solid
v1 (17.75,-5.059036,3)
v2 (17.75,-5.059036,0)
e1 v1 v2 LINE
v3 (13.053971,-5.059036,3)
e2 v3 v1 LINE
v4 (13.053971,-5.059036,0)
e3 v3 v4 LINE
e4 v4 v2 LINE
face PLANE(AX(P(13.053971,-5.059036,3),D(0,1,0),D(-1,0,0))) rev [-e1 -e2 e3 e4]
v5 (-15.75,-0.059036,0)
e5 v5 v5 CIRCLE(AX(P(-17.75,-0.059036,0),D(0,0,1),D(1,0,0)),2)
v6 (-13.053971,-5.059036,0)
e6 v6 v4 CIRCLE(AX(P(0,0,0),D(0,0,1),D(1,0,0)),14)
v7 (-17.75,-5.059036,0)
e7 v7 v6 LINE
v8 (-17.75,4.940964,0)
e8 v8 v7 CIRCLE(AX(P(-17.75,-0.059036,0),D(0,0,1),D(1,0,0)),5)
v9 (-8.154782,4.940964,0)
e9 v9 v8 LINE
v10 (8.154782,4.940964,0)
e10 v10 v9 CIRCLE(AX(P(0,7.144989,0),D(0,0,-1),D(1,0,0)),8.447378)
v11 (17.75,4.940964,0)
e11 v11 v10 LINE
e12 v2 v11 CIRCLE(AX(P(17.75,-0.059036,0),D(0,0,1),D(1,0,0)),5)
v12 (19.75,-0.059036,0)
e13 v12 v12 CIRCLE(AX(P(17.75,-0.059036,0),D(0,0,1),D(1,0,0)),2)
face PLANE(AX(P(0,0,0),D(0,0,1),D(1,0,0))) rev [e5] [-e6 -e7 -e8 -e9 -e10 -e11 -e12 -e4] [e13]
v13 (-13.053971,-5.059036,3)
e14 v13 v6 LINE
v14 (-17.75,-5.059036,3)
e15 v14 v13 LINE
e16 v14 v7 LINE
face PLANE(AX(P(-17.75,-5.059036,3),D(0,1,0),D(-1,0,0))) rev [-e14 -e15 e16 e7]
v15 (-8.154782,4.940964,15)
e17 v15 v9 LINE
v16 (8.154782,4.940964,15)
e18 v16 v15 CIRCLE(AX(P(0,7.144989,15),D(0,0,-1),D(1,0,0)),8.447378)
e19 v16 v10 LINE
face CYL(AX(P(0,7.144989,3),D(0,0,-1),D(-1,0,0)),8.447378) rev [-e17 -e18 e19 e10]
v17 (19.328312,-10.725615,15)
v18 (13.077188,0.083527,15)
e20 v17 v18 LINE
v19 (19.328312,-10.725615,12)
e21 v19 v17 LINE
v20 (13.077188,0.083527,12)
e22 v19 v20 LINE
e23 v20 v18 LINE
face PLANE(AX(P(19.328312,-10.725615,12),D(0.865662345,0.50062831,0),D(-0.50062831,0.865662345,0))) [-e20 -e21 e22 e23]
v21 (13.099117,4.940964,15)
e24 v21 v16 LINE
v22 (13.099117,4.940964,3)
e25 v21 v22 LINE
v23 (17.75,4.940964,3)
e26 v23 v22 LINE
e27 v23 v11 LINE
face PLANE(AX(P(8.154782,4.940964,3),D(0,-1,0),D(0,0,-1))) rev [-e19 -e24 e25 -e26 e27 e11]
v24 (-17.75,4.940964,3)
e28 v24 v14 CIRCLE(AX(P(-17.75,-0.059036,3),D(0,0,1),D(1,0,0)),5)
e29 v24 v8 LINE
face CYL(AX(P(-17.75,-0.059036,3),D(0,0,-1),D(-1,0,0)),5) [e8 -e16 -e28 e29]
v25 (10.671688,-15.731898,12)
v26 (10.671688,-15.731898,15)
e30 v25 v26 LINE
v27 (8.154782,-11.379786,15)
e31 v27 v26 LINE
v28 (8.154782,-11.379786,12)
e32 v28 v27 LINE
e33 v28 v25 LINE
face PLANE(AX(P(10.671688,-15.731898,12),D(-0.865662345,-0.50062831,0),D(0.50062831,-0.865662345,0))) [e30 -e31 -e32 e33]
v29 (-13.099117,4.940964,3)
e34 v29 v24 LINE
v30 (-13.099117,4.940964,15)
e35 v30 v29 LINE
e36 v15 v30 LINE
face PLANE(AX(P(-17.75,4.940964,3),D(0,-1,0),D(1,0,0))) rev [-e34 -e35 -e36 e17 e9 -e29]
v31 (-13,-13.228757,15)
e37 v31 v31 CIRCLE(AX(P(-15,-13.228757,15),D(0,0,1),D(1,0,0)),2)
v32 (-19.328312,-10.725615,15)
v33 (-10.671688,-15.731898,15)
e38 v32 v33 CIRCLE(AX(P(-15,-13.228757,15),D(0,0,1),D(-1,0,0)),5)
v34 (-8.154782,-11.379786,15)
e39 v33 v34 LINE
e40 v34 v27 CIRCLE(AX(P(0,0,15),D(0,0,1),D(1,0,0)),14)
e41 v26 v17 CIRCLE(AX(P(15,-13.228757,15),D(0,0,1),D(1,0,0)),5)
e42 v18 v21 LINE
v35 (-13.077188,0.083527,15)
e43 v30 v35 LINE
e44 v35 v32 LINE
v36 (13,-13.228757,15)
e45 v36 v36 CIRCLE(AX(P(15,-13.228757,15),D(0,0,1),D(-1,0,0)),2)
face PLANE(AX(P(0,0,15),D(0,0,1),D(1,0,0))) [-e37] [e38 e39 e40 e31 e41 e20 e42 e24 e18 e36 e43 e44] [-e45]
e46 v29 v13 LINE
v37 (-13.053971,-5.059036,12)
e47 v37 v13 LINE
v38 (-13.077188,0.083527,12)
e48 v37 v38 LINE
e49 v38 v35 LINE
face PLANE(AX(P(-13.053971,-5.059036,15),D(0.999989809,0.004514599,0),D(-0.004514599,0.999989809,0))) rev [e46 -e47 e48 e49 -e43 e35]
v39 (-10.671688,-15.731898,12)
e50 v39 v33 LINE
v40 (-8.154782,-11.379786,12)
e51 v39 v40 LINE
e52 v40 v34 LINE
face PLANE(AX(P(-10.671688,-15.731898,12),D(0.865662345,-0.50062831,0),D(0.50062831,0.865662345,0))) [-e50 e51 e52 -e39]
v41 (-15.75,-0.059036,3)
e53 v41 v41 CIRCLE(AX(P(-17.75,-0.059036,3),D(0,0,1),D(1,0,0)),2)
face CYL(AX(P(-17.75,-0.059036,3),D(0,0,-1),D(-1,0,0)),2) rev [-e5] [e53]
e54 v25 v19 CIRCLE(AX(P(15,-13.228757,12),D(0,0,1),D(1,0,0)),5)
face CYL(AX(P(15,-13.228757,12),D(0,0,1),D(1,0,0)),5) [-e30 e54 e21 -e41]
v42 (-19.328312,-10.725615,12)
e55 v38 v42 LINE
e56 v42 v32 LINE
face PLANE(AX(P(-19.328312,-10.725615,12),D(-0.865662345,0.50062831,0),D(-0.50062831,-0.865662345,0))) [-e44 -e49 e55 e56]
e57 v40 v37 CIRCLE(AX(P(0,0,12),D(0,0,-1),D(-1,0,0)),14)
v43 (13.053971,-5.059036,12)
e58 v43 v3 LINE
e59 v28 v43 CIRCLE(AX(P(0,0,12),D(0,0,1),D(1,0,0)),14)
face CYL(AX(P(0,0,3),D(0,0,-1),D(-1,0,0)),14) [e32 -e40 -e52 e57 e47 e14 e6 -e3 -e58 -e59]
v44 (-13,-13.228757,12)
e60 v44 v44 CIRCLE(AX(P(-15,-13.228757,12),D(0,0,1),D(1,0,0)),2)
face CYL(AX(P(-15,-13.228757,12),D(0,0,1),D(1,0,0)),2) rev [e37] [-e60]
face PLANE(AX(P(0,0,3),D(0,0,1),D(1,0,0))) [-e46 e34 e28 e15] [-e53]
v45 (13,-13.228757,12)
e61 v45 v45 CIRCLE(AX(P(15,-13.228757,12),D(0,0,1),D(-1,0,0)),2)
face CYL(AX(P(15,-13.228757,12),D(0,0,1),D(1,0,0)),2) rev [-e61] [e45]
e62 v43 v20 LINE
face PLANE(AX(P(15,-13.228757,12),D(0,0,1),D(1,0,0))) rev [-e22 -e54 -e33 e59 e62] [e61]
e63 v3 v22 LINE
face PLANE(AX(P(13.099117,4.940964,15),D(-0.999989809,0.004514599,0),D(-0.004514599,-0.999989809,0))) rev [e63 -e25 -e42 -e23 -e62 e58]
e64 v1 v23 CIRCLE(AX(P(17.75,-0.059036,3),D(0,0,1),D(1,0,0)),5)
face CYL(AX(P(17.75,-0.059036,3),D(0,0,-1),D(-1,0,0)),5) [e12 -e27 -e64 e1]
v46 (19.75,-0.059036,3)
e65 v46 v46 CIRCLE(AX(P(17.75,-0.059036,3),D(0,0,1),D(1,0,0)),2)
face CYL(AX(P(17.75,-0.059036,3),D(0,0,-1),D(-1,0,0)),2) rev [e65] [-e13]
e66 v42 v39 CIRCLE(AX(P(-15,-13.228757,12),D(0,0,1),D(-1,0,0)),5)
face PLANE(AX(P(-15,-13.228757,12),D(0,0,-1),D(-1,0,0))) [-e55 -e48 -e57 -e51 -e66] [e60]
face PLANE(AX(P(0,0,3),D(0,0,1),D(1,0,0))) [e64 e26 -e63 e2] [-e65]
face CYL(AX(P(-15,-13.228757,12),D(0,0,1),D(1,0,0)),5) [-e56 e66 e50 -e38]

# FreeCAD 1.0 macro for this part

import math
import FreeCAD as App
import Part
import Sketcher
Q = App.Units.Quantity

doc = App.newDocument("Part")
body = doc.addObject("PartDesign::Body", "Body")

# Sketch on XY plane
sketch1 = doc.addObject("Sketcher::SketchObject", "Sketch")
body.addObject(sketch1)
sketch1.AttachmentSupport = (doc.XY_Plane, [""])
sketch1.MapMode = "FlatFace"
sketch1.addGeometry([
    Part.LineSegment(App.Vector(-8.2, 4.9, 0), App.Vector(-17.8, 4.9, 0)),  # 0
    Part.ArcOfCircle(Part.Circle(App.Vector(-17.8, -0.1, 0), App.Vector(0, 0, 1), 5), math.radians(90), math.radians(270)),  # 1
    Part.LineSegment(App.Vector(-17.8, -5.1, 0), App.Vector(-13.1, -5.1, 0)),  # 2
    Part.ArcOfCircle(Part.Circle(App.Vector(0, 0, 0), App.Vector(0, 0, 1), 14), math.radians(-159), math.radians(-21)),  # 3
    Part.LineSegment(App.Vector(13.1, -5.1, 0), App.Vector(17.8, -5.1, 0)),  # 4
    Part.ArcOfCircle(Part.Circle(App.Vector(17.8, -0.1, 0), App.Vector(0, 0, 1), 5), math.radians(-90), math.radians(90)),  # 5
    Part.LineSegment(App.Vector(17.8, 4.9, 0), App.Vector(8.2, 4.9, 0)),  # 6
    Part.ArcOfCircle(Part.Circle(App.Vector(0, 7.1, 0), App.Vector(0, 0, 1), 8.4), math.radians(-165), math.radians(-15)),  # 7
    Part.Circle(App.Vector(17.8, -0.1, 0), App.Vector(0, 0, 1), 2),  # 8
    Part.Circle(App.Vector(-17.8, -0.1, 0), App.Vector(0, 0, 1), 2),  # 9
], False)
sketch1.addConstraint([
    Sketcher.Constraint("Tangent", 0, 2, 1, 1),
    Sketcher.Constraint("Tangent", 1, 2, 2, 1),
    Sketcher.Constraint("Coincident", 2, 2, 3, 1),
    Sketcher.Constraint("Coincident", 3, 2, 4, 1),
    Sketcher.Constraint("Tangent", 4, 2, 5, 1),
    Sketcher.Constraint("Tangent", 5, 2, 6, 1),
    Sketcher.Constraint("Coincident", 6, 2, 7, 2),
    Sketcher.Constraint("Coincident", 7, 1, 0, 1),
    Sketcher.Constraint("Horizontal", 0),
    Sketcher.Constraint("Horizontal", 2),
    Sketcher.Constraint("Horizontal", 4),
    Sketcher.Constraint("Horizontal", 6),
    Sketcher.Constraint("Coincident", 3, 3, -1, 1),
    Sketcher.Constraint("Coincident", 8, 3, 5, 3),
    Sketcher.Constraint("Coincident", 9, 3, 1, 3),
    Sketcher.Constraint("Equal", 1, 5),
    Sketcher.Constraint("Equal", 8, 9),
    Sketcher.Constraint("Symmetric", 1, 3, 5, 3, -2),
    Sketcher.Constraint("PointOnObject", 7, 3, -2),
    Sketcher.Constraint("Diameter", 8, Q("4 mm")),
    Sketcher.Constraint("Radius", 1, Q("5 mm")),
    Sketcher.Constraint("Radius", 3, Q("14 mm")),
    Sketcher.Constraint("DistanceX", 1, 3, 5, 3, Q("35.5 mm")),
    Sketcher.Constraint("Radius", 7, Q("8.447378 mm")),
    Sketcher.Constraint("DistanceX", 2, 1, 2, 2, Q("4.696029 mm")),
    Sketcher.Constraint("DistanceX", 0, 2, 0, 1, Q("9.595218 mm")),
])
pad1 = doc.addObject("PartDesign::Pad", "Pad")
body.addObject(pad1)
pad1.Profile = sketch1
pad1.Length = 3

# Sketch on XY plane
sketch2 = doc.addObject("Sketcher::SketchObject", "Sketch001")
body.addObject(sketch2)
sketch2.AttachmentSupport = (doc.XY_Plane, [""])
sketch2.MapMode = "FlatFace"
sketch2.AttachmentOffset = App.Placement(App.Vector(0, 0, 3), App.Rotation())
sketch2.addGeometry([
    Part.LineSegment(App.Vector(13.1, -5.1, 0), App.Vector(13.1, 4.9, 0)),  # 0
    Part.LineSegment(App.Vector(13.1, 4.9, 0), App.Vector(8.2, 4.9, 0)),  # 1
    Part.ArcOfCircle(Part.Circle(App.Vector(0, 7.1, 0), App.Vector(0, 0, 1), 8.4), math.radians(-165), math.radians(-15)),  # 2
    Part.LineSegment(App.Vector(-8.2, 4.9, 0), App.Vector(-13.1, 4.9, 0)),  # 3
    Part.LineSegment(App.Vector(-13.1, 4.9, 0), App.Vector(-13.1, -5.1, 0)),  # 4
    Part.ArcOfCircle(Part.Circle(App.Vector(0, 0, 0), App.Vector(0, 0, 1), 14), math.radians(-159), math.radians(-21)),  # 5
], False)
sketch2.addConstraint([
    Sketcher.Constraint("Coincident", 0, 2, 1, 1),
    Sketcher.Constraint("Coincident", 1, 2, 2, 2),
    Sketcher.Constraint("Coincident", 2, 1, 3, 1),
    Sketcher.Constraint("Coincident", 3, 2, 4, 1),
    Sketcher.Constraint("Coincident", 4, 2, 5, 1),
    Sketcher.Constraint("Coincident", 5, 2, 0, 1),
    Sketcher.Constraint("Horizontal", 1),
    Sketcher.Constraint("Horizontal", 3),
    Sketcher.Constraint("Coincident", 5, 3, -1, 1),
    Sketcher.Constraint("Symmetric", 1, 2, 2, 1, -2),
    Sketcher.Constraint("Horizontal", 4, 2, 5, 2),
    Sketcher.Constraint("Equal", 1, 3),
    Sketcher.Constraint("Radius", 5, Q("14 mm")),
    Sketcher.Constraint("DistanceY", 4, 2, 3, 2, Q("10 mm")),
    Sketcher.Constraint("Radius", 2, Q("8.447378 mm")),
    Sketcher.Constraint("DistanceX", 2, 1, 0, 2, Q("21.2539 mm")),
    Sketcher.Constraint("DistanceX", 1, 2, 1, 1, Q("4.944335 mm")),
    Sketcher.Constraint("DistanceY", -1, 1, 2, 3, Q("7.144989 mm")),
])
pad2 = doc.addObject("PartDesign::Pad", "Pad001")
body.addObject(pad2)
pad2.Profile = sketch2
pad2.Length = 12

# Sketch on XY plane
sketch3 = doc.addObject("Sketcher::SketchObject", "Sketch002")
body.addObject(sketch3)
sketch3.AttachmentSupport = (doc.XY_Plane, [""])
sketch3.MapMode = "FlatFace"
sketch3.AttachmentOffset = App.Placement(App.Vector(0, 0, 15), App.Rotation())
sketch3.addGeometry([
    Part.LineSegment(App.Vector(13.1, 0.1, 0), App.Vector(8.2, -11.4, 0)),  # 0
    Part.LineSegment(App.Vector(8.2, -11.4, 0), App.Vector(10.7, -15.7, 0)),  # 1
    Part.ArcOfCircle(Part.Circle(App.Vector(15, -13.2, 0), App.Vector(0, 0, 1), 5), math.radians(-150), math.radians(30)),  # 2
    Part.LineSegment(App.Vector(19.3, -10.7, 0), App.Vector(13.1, 0.1, 0)),  # 3
    Part.Circle(App.Vector(15, -13.2, 0), App.Vector(0, 0, 1), 2),  # 4
    Part.LineSegment(App.Vector(-10.7, -15.7, 0), App.Vector(-8.2, -11.4, 0)),  # 5
    Part.LineSegment(App.Vector(-8.2, -11.4, 0), App.Vector(-13.1, 0.1, 0)),  # 6
    Part.LineSegment(App.Vector(-13.1, 0.1, 0), App.Vector(-19.3, -10.7, 0)),  # 7
    Part.ArcOfCircle(Part.Circle(App.Vector(-15, -13.2, 0), App.Vector(0, 0, 1), 5), math.radians(150), math.radians(330)),  # 8
    Part.Circle(App.Vector(-15, -13.2, 0), App.Vector(0, 0, 1), 2),  # 9
], False)
sketch3.addConstraint([
    Sketcher.Constraint("Coincident", 0, 2, 1, 1),
    Sketcher.Constraint("Tangent", 1, 2, 2, 1),
    Sketcher.Constraint("Tangent", 2, 2, 3, 1),
    Sketcher.Constraint("Coincident", 3, 2, 0, 1),
    Sketcher.Constraint("Coincident", 5, 2, 6, 1),
    Sketcher.Constraint("Coincident", 6, 2, 7, 1),
    Sketcher.Constraint("Tangent", 7, 2, 8, 1),
    Sketcher.Constraint("Tangent", 8, 2, 5, 1),
    Sketcher.Constraint("Coincident", 4, 3, 2, 3),
    Sketcher.Constraint("Coincident", 9, 3, 8, 3),
    Sketcher.Constraint("Equal", 2, 8),
    Sketcher.Constraint("Equal", 4, 9),
    Sketcher.Constraint("Symmetric", 2, 3, 8, 3, -2),
    Sketcher.Constraint("Symmetric", 0, 2, 5, 2, -2),
    Sketcher.Constraint("Symmetric", 3, 2, 6, 2, -2),
    Sketcher.Constraint("Parallel", 1, 3),
    Sketcher.Constraint("Diameter", 4, Q("4 mm")),
    Sketcher.Constraint("Radius", 2, Q("5 mm")),
    Sketcher.Constraint("DistanceX", -1, 1, 2, 3, Q("15 mm")),
    Sketcher.Constraint("DistanceY", 1, 2, -1, 1, Q("15.731898 mm")),
    Sketcher.Constraint("DistanceX", 1, 2, 3, 2, Q("2.405499 mm")),
    Sketcher.Constraint("Distance", 0, Q("12.475481 mm")),
    Sketcher.Constraint("DistanceX", -1, 1, 1, 2, Q("10.671688 mm")),
])
pad3 = doc.addObject("PartDesign::Pad", "Pad002")
body.addObject(pad3)
pad3.Profile = sketch3
pad3.Length = 3
pad3.Reversed = True

doc.recompute()
